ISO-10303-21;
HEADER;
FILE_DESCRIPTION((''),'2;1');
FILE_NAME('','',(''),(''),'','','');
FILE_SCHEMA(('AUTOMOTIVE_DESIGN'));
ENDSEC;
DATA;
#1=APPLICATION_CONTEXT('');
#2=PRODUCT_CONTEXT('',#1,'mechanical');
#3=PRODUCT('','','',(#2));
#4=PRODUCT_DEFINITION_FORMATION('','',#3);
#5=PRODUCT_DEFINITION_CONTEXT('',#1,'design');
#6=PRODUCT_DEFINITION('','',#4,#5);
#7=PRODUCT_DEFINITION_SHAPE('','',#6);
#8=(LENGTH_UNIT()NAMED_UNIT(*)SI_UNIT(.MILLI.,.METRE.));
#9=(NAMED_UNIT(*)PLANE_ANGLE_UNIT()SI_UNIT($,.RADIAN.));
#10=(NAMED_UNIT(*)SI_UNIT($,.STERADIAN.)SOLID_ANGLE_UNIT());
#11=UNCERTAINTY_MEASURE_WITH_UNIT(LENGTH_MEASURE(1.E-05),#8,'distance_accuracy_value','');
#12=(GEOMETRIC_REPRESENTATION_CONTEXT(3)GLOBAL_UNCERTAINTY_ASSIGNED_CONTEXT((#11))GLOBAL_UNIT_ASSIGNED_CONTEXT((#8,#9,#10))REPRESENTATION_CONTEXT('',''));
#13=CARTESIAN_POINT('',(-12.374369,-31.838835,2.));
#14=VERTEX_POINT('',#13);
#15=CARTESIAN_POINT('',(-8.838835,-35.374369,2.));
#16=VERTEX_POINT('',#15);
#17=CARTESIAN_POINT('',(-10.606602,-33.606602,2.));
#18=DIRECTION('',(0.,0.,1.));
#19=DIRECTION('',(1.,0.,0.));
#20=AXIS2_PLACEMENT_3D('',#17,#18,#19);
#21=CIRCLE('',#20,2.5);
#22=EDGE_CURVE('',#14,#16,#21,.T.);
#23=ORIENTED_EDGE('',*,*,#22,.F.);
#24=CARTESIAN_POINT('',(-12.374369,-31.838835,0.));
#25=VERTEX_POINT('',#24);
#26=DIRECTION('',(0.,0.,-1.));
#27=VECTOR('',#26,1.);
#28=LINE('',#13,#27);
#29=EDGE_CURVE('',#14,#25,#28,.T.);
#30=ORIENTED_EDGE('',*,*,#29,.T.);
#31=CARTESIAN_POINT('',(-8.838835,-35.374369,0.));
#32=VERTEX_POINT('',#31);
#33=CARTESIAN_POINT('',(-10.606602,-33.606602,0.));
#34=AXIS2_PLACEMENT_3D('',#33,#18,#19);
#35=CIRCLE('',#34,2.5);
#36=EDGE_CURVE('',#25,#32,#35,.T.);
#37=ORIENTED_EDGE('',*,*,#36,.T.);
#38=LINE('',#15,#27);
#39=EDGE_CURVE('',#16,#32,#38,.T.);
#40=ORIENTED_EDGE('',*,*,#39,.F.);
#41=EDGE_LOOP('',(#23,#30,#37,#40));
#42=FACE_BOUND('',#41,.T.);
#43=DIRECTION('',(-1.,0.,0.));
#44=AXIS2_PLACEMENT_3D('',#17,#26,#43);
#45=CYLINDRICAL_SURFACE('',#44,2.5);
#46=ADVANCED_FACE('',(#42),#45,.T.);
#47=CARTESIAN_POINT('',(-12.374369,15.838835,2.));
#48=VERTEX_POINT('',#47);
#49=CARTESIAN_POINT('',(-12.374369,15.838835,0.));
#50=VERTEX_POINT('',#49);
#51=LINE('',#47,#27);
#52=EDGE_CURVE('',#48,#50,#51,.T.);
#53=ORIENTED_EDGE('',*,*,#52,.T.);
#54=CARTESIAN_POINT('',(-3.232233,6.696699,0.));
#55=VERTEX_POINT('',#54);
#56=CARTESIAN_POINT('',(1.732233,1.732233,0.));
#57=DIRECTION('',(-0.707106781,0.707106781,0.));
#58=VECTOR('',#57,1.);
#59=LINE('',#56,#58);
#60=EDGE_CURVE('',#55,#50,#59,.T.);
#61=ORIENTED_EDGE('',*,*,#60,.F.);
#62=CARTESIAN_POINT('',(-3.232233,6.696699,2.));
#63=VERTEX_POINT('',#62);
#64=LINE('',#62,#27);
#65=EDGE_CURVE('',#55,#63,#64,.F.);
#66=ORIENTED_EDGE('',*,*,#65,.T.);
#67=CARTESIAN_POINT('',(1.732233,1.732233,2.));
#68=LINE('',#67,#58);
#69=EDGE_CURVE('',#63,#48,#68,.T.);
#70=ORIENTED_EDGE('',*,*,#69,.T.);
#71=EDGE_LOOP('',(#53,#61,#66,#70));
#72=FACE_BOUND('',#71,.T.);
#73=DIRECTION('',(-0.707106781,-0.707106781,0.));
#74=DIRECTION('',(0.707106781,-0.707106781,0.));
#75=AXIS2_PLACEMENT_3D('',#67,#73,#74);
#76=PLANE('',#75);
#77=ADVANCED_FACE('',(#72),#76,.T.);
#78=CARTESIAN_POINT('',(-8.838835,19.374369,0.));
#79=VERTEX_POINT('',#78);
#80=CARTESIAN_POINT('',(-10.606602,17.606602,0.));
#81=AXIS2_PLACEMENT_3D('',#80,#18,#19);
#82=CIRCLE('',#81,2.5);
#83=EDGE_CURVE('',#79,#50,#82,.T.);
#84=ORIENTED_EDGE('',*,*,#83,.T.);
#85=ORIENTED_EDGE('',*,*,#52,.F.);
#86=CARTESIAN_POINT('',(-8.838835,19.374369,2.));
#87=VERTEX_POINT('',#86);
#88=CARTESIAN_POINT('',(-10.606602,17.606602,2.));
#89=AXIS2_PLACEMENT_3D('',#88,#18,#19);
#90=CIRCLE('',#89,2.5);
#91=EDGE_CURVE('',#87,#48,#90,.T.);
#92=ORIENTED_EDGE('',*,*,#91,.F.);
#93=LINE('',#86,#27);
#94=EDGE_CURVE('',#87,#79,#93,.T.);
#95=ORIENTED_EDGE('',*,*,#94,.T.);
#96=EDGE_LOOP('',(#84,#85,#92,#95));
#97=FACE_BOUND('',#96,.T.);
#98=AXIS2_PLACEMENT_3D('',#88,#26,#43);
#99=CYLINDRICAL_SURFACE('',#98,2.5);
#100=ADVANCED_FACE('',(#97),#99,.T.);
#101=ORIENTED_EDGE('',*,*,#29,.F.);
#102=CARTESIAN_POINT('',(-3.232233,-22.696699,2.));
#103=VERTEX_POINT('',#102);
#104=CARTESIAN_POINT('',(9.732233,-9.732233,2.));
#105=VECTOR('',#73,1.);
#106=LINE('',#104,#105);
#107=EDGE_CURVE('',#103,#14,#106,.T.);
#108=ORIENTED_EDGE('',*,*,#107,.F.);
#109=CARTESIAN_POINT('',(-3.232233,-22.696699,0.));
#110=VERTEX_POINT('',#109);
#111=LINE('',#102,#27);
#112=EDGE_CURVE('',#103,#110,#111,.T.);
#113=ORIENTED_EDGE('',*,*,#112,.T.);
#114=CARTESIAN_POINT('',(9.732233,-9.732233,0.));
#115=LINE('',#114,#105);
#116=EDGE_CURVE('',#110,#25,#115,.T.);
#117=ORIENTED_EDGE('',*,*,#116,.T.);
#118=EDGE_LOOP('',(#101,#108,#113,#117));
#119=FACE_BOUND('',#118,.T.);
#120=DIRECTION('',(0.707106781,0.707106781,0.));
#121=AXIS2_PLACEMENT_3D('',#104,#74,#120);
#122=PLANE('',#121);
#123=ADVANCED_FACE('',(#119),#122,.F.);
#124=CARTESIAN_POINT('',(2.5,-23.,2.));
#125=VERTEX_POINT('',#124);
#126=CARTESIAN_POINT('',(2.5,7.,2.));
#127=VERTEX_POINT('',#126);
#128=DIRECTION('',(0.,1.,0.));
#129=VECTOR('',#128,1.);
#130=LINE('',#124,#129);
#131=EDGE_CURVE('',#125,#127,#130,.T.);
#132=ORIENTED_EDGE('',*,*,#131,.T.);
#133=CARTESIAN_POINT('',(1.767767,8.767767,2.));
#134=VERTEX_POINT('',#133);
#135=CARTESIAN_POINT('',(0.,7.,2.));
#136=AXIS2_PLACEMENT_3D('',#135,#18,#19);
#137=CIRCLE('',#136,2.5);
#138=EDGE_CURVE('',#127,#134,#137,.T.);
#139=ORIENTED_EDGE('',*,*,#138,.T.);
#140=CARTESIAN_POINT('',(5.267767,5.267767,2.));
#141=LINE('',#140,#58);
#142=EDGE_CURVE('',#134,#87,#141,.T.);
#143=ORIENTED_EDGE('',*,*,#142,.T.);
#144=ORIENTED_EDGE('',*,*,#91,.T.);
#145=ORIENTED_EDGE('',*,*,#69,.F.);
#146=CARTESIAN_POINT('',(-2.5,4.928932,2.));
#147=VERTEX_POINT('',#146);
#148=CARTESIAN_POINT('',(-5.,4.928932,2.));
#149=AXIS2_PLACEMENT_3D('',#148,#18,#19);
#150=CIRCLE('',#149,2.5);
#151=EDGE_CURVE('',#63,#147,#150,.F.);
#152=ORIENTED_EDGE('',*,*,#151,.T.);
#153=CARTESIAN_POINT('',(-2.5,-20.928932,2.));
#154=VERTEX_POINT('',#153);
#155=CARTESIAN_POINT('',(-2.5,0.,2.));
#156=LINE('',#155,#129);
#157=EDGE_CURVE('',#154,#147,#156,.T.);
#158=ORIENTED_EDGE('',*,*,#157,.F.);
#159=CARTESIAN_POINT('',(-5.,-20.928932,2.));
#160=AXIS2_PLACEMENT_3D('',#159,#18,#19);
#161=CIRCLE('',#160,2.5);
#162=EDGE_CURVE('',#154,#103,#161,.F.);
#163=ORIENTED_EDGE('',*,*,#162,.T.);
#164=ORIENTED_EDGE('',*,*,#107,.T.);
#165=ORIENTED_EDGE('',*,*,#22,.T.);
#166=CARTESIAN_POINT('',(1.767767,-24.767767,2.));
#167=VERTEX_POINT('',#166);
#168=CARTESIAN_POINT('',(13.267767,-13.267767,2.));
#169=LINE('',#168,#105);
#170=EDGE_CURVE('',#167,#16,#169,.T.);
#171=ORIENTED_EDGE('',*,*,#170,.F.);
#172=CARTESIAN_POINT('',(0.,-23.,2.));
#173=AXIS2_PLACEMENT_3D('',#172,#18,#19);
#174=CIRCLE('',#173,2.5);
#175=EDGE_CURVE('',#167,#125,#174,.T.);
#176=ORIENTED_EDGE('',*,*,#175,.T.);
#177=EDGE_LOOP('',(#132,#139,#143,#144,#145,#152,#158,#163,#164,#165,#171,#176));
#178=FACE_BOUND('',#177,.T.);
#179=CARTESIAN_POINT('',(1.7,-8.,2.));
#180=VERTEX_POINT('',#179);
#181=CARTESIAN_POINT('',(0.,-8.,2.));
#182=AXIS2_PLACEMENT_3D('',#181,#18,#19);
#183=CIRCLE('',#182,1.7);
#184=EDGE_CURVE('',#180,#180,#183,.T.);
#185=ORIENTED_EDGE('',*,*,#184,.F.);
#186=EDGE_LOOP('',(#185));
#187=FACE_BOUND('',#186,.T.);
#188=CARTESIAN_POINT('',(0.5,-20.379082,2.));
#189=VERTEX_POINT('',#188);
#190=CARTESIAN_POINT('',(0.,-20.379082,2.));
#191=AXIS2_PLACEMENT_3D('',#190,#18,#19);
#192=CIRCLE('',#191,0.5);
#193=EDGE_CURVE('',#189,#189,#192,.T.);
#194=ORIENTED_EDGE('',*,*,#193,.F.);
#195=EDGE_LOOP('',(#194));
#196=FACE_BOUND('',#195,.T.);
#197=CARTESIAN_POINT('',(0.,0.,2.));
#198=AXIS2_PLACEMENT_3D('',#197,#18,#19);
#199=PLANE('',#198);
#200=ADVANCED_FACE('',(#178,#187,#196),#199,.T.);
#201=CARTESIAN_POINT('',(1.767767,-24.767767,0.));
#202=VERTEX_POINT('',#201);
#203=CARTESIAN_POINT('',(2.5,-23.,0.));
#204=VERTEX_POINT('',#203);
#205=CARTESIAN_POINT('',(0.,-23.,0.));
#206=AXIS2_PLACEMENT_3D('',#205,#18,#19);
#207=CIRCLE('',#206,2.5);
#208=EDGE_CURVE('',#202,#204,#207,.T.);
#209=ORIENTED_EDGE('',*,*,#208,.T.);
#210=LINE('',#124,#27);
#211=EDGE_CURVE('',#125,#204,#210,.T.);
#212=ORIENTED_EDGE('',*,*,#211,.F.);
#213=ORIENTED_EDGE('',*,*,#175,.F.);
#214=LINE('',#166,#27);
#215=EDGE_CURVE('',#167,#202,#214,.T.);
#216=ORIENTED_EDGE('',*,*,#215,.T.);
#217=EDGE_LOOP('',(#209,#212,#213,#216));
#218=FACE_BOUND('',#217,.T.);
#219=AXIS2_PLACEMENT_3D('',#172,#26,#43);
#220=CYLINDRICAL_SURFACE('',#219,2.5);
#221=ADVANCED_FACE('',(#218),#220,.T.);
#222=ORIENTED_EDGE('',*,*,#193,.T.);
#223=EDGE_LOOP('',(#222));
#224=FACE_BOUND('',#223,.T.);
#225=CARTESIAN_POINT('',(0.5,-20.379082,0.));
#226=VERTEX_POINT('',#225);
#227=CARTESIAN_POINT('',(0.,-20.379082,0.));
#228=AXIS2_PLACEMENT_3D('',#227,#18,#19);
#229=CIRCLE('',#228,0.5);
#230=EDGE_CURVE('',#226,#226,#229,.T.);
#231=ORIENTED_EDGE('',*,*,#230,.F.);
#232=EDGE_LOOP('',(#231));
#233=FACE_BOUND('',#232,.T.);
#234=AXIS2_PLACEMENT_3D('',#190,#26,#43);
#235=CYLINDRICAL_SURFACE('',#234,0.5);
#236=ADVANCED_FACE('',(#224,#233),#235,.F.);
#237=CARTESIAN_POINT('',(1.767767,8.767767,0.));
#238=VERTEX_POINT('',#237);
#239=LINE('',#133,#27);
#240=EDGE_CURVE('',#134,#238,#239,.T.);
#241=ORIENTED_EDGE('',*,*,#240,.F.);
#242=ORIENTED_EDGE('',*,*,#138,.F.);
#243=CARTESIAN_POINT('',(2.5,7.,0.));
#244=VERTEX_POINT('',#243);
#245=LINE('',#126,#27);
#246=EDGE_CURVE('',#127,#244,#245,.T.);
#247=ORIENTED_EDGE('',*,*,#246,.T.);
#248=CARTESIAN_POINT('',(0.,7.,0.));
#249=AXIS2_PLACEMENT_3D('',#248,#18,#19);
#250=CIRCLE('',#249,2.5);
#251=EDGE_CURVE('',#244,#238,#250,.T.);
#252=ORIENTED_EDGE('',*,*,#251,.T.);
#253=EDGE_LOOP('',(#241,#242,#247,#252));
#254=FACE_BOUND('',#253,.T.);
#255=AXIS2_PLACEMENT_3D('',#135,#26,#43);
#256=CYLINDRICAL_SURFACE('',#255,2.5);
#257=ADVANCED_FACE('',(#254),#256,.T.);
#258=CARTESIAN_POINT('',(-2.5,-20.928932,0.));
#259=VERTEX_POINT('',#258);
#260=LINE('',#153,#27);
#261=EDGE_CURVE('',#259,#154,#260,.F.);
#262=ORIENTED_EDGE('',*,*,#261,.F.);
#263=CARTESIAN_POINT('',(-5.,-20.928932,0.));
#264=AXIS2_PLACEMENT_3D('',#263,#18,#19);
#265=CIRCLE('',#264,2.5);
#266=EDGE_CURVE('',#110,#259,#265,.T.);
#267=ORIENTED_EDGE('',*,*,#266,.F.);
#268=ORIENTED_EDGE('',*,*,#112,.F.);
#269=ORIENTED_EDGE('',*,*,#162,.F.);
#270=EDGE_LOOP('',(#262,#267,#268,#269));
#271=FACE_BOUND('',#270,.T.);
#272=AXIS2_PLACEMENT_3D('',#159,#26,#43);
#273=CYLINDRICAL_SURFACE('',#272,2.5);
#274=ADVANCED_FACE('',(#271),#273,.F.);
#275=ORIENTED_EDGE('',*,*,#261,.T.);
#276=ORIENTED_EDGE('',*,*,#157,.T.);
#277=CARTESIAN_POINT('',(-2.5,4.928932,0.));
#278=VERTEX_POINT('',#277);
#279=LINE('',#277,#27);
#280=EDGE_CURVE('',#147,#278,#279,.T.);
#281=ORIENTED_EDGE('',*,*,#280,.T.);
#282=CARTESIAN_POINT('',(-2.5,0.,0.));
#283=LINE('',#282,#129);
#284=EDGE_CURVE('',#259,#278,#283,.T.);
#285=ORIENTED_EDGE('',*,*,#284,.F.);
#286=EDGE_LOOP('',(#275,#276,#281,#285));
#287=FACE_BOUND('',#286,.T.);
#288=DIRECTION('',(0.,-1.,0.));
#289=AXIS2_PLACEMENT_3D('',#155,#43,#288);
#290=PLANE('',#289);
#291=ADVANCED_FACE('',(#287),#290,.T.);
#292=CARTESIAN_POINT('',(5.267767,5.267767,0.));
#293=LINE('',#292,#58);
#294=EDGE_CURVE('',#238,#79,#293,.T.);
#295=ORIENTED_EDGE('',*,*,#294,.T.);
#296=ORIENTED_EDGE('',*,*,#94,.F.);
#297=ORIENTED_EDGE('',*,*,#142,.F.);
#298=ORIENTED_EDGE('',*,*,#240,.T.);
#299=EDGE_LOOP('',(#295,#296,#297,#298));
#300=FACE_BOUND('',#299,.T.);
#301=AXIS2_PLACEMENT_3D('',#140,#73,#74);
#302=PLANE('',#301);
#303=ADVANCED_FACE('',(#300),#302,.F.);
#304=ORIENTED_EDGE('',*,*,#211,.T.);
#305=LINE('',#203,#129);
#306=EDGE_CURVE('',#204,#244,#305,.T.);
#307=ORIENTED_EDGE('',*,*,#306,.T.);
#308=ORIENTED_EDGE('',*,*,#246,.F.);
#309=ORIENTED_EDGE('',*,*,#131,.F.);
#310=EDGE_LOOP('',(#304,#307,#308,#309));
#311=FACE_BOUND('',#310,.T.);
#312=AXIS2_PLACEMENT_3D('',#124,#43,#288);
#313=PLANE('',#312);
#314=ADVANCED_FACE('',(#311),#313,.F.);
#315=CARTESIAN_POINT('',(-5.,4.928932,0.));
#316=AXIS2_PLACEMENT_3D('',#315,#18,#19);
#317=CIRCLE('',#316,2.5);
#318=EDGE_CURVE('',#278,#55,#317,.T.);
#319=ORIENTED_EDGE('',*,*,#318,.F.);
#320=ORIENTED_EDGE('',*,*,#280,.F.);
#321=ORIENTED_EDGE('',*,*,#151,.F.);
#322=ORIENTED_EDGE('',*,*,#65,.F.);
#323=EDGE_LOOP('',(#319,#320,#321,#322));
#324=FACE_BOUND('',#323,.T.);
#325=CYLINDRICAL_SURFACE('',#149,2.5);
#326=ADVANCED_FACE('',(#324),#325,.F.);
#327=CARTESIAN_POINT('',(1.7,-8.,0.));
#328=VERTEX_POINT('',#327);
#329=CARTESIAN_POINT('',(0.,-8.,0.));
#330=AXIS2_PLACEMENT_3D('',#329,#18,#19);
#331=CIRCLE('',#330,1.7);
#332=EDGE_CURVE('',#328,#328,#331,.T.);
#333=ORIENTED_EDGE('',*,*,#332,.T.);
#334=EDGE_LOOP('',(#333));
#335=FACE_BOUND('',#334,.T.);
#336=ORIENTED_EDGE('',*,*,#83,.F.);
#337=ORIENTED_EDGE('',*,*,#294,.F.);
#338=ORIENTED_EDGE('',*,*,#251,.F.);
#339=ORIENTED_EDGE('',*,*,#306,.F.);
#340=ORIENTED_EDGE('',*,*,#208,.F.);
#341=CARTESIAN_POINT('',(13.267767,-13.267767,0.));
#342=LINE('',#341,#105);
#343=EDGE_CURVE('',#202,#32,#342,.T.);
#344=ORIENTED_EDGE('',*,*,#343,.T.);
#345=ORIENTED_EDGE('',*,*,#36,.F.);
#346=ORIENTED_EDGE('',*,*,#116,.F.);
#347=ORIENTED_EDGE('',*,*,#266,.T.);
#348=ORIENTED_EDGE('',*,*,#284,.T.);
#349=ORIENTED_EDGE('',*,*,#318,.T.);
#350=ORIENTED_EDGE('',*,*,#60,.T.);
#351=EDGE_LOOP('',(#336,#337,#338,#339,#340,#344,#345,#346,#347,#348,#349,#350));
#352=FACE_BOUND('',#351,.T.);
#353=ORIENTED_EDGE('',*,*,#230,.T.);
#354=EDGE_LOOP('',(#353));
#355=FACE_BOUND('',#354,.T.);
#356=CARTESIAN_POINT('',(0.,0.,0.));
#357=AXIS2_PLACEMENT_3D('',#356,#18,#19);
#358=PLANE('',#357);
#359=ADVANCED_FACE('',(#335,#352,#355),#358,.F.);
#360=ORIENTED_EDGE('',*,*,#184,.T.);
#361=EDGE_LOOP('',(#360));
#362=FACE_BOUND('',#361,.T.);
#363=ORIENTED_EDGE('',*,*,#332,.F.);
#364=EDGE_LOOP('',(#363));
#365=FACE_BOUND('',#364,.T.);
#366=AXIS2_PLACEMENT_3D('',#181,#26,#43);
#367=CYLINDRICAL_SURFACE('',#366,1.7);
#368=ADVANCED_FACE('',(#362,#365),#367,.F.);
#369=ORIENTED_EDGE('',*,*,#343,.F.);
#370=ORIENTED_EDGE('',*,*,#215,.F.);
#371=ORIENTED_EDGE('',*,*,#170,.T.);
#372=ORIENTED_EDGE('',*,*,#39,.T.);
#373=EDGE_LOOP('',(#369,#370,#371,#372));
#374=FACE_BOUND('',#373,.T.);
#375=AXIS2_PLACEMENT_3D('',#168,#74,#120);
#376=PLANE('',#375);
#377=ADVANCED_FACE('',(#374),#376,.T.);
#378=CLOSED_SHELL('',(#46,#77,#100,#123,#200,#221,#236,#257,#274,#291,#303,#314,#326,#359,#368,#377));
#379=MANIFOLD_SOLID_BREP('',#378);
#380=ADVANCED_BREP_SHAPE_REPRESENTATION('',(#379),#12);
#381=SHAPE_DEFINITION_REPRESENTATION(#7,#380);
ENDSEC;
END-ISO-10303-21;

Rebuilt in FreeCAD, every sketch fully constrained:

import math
import FreeCAD as App
import Part
import Sketcher
from FreeCAD import Vector


def edges_at(feature, points):
    """Names of the edges that pass closest to the given points."""
    edges = feature.Shape.Edges
    near = lambda p: min(range(len(edges)), key=lambda i: edges[i].distToShape(Part.Vertex(*p))[0])
    return sorted({f"Edge{near(p) + 1}" for p in points})

doc = App.newDocument("Part")
body = doc.addObject("PartDesign::Body", "Body")

sketch1 = body.newObject("Sketcher::SketchObject", "Sketch")
sketch1.AttachmentSupport = (doc.getObject("XY_Plane"), [""])
sketch1.MapMode = "FlatFace"
sketch1.addGeometry([
    Part.LineSegment(Vector(-8.838835, -35.374369, 0), Vector(1.767767, -24.767767, 0)),
    Part.ArcOfCircle(Part.Circle(Vector(0, -23, 0), Vector(0, 0, 1), 2.5), math.radians(-45), math.radians(0)),
    Part.LineSegment(Vector(2.5, -23, 0), Vector(2.5, 7, 0)),
    Part.ArcOfCircle(Part.Circle(Vector(0, 7, 0), Vector(0, 0, 1), 2.5), math.radians(0), math.radians(45)),
    Part.LineSegment(Vector(1.767767, 8.767767, 0), Vector(-8.838835, 19.374369, 0)),
    Part.ArcOfCircle(Part.Circle(Vector(-10.606602, 17.606602, 0), Vector(0, 0, 1), 2.5), math.radians(45), math.radians(225)),
    Part.LineSegment(Vector(-12.374369, 15.838835, 0), Vector(-2.5, 5.964466, 0)),
    Part.LineSegment(Vector(-2.5, 5.964466, 0), Vector(-2.5, -21.964466, 0)),
    Part.LineSegment(Vector(-2.5, -21.964466, 0), Vector(-12.374369, -31.838835, 0)),
    Part.ArcOfCircle(Part.Circle(Vector(-10.606602, -33.606602, 0), Vector(0, 0, 1), 2.5), math.radians(135), math.radians(315)),
    Part.Circle(Vector(0, -20.379082, 0), Vector(0, 0, 1), 0.5),
    Part.Circle(Vector(0, -8, 0), Vector(0, 0, 1), 1.7),
], False)
sketch1.addConstraint([
    Sketcher.Constraint("Tangent", 0, 2, 1, 1),
    Sketcher.Constraint("Tangent", 1, 2, 2, 1),
    Sketcher.Constraint("Tangent", 2, 2, 3, 1),
    Sketcher.Constraint("Tangent", 3, 2, 4, 1),
    Sketcher.Constraint("Tangent", 4, 2, 5, 1),
    Sketcher.Constraint("Tangent", 5, 2, 6, 1),
    Sketcher.Constraint("Coincident", 6, 2, 7, 1),
    Sketcher.Constraint("Coincident", 7, 2, 8, 1),
    Sketcher.Constraint("Tangent", 8, 2, 9, 1),
    Sketcher.Constraint("Tangent", 9, 2, 0, 1),
    Sketcher.Constraint("Vertical", 2),
    Sketcher.Constraint("Vertical", 7),
    Sketcher.Constraint("Equal", 1, 3),
    Sketcher.Constraint("Equal", 3, 5),
    Sketcher.Constraint("Equal", 5, 9),
    Sketcher.Constraint("PointOnObject", 1, 3, -2),
    Sketcher.Constraint("PointOnObject", 10, 3, -2),
    Sketcher.Constraint("PointOnObject", 11, 3, -2),
    Sketcher.Constraint("Perpendicular", 0, 4),
    Sketcher.Constraint("Parallel", 4, 6),
    Sketcher.Constraint("Perpendicular", 6, 8),
    Sketcher.Constraint("Vertical", 5, 3, 9, 3),
    Sketcher.Constraint("Vertical", 0, 2, 3, 2),
    Sketcher.Constraint("Diameter", 10, 1.0),
    Sketcher.Constraint("Diameter", 11, 3.4),
    Sketcher.Constraint("Radius", 1, 2.5),
    Sketcher.Constraint("DistanceY", 2, 1, 2, 2, 30.0),
    Sketcher.Constraint("Distance", 0, 15.0),
    Sketcher.Constraint("DistanceY", 1, 3, -1, 1, 23.0),
    Sketcher.Constraint("DistanceY", 11, 3, -1, 1, 8.0),
    Sketcher.Constraint("DistanceX", 6, 2, 2, 2, 5.0),
    Sketcher.Constraint("DistanceY", 10, 3, -1, 1, 20.379082),
])
pad1 = body.newObject("PartDesign::Pad", "Pad")
pad1.Profile = sketch1
pad1.Length = 2
doc.recompute()

fillet = body.newObject("PartDesign::Fillet", "Fillet")
fillet.Base = (pad1, edges_at(pad1, [(-2.5, 5.964, 1), (-2.5, -21.964, 1)]))
fillet.Radius = 2.5

doc.recompute()
